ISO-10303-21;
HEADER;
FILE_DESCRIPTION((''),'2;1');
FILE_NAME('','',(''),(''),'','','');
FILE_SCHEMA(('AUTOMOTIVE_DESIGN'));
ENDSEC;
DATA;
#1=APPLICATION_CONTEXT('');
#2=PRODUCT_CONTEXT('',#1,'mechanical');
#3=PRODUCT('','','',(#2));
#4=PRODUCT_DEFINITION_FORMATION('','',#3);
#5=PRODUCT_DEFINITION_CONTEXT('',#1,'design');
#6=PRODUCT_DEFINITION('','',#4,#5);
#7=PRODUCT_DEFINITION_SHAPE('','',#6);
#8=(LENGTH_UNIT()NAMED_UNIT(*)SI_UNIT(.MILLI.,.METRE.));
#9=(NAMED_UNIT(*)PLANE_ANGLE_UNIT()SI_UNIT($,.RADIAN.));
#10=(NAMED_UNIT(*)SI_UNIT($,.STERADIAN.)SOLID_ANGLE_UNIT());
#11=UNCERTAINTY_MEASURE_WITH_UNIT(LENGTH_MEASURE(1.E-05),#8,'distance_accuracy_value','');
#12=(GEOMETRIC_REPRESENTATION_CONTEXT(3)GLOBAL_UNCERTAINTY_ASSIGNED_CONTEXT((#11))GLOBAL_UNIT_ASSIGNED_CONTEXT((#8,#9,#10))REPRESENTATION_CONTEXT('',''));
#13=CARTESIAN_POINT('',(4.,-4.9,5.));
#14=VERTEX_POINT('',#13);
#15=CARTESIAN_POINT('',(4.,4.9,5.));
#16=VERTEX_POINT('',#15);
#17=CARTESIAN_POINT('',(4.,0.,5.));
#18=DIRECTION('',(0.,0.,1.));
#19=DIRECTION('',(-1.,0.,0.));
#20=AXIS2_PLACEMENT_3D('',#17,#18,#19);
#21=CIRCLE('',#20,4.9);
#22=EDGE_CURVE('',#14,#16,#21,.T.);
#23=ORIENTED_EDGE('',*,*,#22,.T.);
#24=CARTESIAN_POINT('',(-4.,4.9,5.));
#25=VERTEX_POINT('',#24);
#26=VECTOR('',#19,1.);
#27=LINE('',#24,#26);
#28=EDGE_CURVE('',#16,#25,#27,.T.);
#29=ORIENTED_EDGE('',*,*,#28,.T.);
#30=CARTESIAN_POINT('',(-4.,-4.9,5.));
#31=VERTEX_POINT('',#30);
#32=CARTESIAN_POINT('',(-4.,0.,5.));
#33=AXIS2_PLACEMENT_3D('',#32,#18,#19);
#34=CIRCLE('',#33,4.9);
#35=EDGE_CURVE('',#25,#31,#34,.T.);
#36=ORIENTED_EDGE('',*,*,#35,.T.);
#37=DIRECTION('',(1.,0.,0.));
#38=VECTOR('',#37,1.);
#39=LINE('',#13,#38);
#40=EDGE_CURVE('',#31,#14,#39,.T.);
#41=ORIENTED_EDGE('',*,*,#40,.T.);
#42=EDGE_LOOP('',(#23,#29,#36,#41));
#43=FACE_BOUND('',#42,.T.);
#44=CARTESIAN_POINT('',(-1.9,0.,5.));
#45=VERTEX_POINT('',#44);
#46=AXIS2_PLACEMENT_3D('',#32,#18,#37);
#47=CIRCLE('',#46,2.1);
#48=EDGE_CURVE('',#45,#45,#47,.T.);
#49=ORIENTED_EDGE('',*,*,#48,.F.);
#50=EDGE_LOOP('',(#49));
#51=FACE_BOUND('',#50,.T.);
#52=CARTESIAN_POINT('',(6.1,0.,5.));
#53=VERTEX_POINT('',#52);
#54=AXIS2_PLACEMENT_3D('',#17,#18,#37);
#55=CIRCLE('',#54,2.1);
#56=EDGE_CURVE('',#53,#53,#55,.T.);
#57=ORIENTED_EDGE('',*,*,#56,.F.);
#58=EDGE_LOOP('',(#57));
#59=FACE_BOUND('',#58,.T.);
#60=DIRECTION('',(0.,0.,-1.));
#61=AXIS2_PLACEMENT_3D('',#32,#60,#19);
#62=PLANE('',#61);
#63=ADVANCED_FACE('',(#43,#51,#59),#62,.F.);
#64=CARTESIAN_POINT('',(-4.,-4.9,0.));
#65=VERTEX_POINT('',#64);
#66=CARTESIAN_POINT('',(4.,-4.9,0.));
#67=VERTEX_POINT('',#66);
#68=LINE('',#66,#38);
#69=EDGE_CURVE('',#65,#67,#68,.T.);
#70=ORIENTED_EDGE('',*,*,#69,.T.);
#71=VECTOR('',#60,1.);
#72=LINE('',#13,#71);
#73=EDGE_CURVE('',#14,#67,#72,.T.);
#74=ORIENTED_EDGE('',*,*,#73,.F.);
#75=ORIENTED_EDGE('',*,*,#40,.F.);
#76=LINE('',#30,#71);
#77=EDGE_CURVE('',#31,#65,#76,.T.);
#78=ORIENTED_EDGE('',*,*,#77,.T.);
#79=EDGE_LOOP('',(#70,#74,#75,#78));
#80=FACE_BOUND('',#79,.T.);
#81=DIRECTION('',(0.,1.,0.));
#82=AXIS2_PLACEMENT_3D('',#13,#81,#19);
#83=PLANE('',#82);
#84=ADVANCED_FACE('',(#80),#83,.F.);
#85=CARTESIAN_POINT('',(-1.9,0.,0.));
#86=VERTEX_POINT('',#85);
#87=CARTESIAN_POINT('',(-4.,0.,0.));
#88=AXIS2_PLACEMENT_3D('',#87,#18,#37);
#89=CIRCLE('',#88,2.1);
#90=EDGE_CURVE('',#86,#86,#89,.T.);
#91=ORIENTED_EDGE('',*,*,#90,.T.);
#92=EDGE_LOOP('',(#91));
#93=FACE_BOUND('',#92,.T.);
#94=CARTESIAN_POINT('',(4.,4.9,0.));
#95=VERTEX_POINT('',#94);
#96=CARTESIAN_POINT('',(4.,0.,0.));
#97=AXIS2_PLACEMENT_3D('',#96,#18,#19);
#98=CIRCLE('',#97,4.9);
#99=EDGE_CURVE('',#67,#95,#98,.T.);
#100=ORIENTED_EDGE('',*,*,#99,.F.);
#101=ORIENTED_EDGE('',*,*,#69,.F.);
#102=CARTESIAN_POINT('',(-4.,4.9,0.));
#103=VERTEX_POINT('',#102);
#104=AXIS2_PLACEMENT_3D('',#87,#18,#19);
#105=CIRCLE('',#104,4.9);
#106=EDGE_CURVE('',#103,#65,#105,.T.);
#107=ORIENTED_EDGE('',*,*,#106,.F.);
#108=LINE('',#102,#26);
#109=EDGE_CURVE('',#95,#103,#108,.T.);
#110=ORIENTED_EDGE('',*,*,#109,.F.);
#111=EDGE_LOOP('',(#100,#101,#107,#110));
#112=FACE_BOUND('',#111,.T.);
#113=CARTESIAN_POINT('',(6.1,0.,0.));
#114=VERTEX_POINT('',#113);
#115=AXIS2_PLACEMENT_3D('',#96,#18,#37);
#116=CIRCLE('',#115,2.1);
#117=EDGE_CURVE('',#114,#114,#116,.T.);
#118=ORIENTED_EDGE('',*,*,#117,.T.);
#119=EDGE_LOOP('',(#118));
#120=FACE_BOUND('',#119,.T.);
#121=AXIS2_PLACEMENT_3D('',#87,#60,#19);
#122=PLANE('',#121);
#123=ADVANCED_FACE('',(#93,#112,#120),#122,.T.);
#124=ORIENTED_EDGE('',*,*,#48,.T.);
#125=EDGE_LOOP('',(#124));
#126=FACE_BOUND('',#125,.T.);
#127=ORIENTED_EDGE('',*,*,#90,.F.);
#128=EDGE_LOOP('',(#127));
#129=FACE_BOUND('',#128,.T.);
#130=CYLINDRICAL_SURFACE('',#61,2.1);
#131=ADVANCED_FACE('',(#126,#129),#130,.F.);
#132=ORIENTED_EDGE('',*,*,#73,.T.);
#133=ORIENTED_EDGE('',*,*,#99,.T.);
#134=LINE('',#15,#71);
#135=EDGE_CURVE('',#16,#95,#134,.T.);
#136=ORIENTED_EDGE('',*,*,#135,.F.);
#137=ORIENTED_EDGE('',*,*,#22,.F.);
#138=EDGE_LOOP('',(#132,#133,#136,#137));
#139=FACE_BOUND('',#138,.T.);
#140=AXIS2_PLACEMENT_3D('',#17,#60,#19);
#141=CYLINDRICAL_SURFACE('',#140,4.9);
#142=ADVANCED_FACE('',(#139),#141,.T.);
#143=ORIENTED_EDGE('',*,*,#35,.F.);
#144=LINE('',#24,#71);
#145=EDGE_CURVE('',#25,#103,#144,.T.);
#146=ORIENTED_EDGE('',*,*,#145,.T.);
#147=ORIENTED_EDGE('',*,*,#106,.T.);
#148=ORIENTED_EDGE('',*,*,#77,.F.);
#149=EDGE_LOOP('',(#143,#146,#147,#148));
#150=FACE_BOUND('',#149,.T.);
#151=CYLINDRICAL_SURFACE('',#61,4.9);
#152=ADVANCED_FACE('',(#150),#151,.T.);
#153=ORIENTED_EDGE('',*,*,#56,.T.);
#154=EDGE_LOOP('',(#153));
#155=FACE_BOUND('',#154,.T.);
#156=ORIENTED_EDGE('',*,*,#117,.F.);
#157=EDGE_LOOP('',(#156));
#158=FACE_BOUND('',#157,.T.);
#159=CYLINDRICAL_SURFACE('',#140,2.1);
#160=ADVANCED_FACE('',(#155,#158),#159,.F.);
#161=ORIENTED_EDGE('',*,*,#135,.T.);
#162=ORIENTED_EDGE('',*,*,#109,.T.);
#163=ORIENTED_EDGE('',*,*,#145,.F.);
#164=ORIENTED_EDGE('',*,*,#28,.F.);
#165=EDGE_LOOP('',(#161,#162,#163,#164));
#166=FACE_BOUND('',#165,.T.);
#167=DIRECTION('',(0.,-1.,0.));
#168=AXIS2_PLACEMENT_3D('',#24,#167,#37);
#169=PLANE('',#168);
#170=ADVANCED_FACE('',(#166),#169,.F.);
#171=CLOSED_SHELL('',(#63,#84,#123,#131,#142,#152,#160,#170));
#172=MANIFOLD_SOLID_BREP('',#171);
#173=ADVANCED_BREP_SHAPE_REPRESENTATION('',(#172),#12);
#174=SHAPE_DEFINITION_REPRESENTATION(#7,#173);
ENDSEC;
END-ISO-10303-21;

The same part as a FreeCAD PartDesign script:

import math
import FreeCAD as App
import Part
import Sketcher
from FreeCAD import Vector

doc = App.newDocument("Part")
body = doc.addObject("PartDesign::Body", "Body")

sketch1 = doc.addObject("Sketcher::SketchObject", "Sketch")
body.addObject(sketch1)
sketch1.AttachmentSupport = (doc.XY_Plane, [""])
sketch1.MapMode = "FlatFace"
sketch1.addGeometry([
    Part.LineSegment(Vector(4, 4.9, 0), Vector(-4, 4.9, 0)),
    Part.ArcOfCircle(Part.Circle(Vector(-4, 0, 0), Vector(0, 0, 1), 4.9), math.radians(90), math.radians(270)),
    Part.LineSegment(Vector(-4, -4.9, 0), Vector(4, -4.9, 0)),
    Part.ArcOfCircle(Part.Circle(Vector(4, 0, 0), Vector(0, 0, 1), 4.9), math.radians(-90), math.radians(90)),
    Part.Circle(Vector(4, 0, 0), Vector(0, 0, 1), 2.1),
    Part.Circle(Vector(-4, 0, 0), Vector(0, 0, 1), 2.1),
], False)
sketch1.addConstraint([
    Sketcher.Constraint("Tangent", 0, 2, 1, 1),
    Sketcher.Constraint("Tangent", 1, 2, 2, 1),
    Sketcher.Constraint("Tangent", 2, 2, 3, 1),
    Sketcher.Constraint("Tangent", 3, 2, 0, 1),
    Sketcher.Constraint("Horizontal", 0),
    Sketcher.Constraint("Horizontal", 2),
    Sketcher.Constraint("Coincident", 4, 3, 3, 3),
    Sketcher.Constraint("Coincident", 5, 3, 1, 3),
    Sketcher.Constraint("Equal", 4, 5),
    Sketcher.Constraint("Symmetric", 1, 3, 3, 3, -1, 1),
    Sketcher.Constraint("Diameter", 4, 4.2),
    Sketcher.Constraint("Radius", 1, 4.9),
    Sketcher.Constraint("DistanceX", 0, 2, 0, 1, 8.0),
])
pad1 = doc.addObject("PartDesign::Pad", "Pad")
body.addObject(pad1)
pad1.Profile = sketch1
pad1.Length = 5

doc.recompute()
